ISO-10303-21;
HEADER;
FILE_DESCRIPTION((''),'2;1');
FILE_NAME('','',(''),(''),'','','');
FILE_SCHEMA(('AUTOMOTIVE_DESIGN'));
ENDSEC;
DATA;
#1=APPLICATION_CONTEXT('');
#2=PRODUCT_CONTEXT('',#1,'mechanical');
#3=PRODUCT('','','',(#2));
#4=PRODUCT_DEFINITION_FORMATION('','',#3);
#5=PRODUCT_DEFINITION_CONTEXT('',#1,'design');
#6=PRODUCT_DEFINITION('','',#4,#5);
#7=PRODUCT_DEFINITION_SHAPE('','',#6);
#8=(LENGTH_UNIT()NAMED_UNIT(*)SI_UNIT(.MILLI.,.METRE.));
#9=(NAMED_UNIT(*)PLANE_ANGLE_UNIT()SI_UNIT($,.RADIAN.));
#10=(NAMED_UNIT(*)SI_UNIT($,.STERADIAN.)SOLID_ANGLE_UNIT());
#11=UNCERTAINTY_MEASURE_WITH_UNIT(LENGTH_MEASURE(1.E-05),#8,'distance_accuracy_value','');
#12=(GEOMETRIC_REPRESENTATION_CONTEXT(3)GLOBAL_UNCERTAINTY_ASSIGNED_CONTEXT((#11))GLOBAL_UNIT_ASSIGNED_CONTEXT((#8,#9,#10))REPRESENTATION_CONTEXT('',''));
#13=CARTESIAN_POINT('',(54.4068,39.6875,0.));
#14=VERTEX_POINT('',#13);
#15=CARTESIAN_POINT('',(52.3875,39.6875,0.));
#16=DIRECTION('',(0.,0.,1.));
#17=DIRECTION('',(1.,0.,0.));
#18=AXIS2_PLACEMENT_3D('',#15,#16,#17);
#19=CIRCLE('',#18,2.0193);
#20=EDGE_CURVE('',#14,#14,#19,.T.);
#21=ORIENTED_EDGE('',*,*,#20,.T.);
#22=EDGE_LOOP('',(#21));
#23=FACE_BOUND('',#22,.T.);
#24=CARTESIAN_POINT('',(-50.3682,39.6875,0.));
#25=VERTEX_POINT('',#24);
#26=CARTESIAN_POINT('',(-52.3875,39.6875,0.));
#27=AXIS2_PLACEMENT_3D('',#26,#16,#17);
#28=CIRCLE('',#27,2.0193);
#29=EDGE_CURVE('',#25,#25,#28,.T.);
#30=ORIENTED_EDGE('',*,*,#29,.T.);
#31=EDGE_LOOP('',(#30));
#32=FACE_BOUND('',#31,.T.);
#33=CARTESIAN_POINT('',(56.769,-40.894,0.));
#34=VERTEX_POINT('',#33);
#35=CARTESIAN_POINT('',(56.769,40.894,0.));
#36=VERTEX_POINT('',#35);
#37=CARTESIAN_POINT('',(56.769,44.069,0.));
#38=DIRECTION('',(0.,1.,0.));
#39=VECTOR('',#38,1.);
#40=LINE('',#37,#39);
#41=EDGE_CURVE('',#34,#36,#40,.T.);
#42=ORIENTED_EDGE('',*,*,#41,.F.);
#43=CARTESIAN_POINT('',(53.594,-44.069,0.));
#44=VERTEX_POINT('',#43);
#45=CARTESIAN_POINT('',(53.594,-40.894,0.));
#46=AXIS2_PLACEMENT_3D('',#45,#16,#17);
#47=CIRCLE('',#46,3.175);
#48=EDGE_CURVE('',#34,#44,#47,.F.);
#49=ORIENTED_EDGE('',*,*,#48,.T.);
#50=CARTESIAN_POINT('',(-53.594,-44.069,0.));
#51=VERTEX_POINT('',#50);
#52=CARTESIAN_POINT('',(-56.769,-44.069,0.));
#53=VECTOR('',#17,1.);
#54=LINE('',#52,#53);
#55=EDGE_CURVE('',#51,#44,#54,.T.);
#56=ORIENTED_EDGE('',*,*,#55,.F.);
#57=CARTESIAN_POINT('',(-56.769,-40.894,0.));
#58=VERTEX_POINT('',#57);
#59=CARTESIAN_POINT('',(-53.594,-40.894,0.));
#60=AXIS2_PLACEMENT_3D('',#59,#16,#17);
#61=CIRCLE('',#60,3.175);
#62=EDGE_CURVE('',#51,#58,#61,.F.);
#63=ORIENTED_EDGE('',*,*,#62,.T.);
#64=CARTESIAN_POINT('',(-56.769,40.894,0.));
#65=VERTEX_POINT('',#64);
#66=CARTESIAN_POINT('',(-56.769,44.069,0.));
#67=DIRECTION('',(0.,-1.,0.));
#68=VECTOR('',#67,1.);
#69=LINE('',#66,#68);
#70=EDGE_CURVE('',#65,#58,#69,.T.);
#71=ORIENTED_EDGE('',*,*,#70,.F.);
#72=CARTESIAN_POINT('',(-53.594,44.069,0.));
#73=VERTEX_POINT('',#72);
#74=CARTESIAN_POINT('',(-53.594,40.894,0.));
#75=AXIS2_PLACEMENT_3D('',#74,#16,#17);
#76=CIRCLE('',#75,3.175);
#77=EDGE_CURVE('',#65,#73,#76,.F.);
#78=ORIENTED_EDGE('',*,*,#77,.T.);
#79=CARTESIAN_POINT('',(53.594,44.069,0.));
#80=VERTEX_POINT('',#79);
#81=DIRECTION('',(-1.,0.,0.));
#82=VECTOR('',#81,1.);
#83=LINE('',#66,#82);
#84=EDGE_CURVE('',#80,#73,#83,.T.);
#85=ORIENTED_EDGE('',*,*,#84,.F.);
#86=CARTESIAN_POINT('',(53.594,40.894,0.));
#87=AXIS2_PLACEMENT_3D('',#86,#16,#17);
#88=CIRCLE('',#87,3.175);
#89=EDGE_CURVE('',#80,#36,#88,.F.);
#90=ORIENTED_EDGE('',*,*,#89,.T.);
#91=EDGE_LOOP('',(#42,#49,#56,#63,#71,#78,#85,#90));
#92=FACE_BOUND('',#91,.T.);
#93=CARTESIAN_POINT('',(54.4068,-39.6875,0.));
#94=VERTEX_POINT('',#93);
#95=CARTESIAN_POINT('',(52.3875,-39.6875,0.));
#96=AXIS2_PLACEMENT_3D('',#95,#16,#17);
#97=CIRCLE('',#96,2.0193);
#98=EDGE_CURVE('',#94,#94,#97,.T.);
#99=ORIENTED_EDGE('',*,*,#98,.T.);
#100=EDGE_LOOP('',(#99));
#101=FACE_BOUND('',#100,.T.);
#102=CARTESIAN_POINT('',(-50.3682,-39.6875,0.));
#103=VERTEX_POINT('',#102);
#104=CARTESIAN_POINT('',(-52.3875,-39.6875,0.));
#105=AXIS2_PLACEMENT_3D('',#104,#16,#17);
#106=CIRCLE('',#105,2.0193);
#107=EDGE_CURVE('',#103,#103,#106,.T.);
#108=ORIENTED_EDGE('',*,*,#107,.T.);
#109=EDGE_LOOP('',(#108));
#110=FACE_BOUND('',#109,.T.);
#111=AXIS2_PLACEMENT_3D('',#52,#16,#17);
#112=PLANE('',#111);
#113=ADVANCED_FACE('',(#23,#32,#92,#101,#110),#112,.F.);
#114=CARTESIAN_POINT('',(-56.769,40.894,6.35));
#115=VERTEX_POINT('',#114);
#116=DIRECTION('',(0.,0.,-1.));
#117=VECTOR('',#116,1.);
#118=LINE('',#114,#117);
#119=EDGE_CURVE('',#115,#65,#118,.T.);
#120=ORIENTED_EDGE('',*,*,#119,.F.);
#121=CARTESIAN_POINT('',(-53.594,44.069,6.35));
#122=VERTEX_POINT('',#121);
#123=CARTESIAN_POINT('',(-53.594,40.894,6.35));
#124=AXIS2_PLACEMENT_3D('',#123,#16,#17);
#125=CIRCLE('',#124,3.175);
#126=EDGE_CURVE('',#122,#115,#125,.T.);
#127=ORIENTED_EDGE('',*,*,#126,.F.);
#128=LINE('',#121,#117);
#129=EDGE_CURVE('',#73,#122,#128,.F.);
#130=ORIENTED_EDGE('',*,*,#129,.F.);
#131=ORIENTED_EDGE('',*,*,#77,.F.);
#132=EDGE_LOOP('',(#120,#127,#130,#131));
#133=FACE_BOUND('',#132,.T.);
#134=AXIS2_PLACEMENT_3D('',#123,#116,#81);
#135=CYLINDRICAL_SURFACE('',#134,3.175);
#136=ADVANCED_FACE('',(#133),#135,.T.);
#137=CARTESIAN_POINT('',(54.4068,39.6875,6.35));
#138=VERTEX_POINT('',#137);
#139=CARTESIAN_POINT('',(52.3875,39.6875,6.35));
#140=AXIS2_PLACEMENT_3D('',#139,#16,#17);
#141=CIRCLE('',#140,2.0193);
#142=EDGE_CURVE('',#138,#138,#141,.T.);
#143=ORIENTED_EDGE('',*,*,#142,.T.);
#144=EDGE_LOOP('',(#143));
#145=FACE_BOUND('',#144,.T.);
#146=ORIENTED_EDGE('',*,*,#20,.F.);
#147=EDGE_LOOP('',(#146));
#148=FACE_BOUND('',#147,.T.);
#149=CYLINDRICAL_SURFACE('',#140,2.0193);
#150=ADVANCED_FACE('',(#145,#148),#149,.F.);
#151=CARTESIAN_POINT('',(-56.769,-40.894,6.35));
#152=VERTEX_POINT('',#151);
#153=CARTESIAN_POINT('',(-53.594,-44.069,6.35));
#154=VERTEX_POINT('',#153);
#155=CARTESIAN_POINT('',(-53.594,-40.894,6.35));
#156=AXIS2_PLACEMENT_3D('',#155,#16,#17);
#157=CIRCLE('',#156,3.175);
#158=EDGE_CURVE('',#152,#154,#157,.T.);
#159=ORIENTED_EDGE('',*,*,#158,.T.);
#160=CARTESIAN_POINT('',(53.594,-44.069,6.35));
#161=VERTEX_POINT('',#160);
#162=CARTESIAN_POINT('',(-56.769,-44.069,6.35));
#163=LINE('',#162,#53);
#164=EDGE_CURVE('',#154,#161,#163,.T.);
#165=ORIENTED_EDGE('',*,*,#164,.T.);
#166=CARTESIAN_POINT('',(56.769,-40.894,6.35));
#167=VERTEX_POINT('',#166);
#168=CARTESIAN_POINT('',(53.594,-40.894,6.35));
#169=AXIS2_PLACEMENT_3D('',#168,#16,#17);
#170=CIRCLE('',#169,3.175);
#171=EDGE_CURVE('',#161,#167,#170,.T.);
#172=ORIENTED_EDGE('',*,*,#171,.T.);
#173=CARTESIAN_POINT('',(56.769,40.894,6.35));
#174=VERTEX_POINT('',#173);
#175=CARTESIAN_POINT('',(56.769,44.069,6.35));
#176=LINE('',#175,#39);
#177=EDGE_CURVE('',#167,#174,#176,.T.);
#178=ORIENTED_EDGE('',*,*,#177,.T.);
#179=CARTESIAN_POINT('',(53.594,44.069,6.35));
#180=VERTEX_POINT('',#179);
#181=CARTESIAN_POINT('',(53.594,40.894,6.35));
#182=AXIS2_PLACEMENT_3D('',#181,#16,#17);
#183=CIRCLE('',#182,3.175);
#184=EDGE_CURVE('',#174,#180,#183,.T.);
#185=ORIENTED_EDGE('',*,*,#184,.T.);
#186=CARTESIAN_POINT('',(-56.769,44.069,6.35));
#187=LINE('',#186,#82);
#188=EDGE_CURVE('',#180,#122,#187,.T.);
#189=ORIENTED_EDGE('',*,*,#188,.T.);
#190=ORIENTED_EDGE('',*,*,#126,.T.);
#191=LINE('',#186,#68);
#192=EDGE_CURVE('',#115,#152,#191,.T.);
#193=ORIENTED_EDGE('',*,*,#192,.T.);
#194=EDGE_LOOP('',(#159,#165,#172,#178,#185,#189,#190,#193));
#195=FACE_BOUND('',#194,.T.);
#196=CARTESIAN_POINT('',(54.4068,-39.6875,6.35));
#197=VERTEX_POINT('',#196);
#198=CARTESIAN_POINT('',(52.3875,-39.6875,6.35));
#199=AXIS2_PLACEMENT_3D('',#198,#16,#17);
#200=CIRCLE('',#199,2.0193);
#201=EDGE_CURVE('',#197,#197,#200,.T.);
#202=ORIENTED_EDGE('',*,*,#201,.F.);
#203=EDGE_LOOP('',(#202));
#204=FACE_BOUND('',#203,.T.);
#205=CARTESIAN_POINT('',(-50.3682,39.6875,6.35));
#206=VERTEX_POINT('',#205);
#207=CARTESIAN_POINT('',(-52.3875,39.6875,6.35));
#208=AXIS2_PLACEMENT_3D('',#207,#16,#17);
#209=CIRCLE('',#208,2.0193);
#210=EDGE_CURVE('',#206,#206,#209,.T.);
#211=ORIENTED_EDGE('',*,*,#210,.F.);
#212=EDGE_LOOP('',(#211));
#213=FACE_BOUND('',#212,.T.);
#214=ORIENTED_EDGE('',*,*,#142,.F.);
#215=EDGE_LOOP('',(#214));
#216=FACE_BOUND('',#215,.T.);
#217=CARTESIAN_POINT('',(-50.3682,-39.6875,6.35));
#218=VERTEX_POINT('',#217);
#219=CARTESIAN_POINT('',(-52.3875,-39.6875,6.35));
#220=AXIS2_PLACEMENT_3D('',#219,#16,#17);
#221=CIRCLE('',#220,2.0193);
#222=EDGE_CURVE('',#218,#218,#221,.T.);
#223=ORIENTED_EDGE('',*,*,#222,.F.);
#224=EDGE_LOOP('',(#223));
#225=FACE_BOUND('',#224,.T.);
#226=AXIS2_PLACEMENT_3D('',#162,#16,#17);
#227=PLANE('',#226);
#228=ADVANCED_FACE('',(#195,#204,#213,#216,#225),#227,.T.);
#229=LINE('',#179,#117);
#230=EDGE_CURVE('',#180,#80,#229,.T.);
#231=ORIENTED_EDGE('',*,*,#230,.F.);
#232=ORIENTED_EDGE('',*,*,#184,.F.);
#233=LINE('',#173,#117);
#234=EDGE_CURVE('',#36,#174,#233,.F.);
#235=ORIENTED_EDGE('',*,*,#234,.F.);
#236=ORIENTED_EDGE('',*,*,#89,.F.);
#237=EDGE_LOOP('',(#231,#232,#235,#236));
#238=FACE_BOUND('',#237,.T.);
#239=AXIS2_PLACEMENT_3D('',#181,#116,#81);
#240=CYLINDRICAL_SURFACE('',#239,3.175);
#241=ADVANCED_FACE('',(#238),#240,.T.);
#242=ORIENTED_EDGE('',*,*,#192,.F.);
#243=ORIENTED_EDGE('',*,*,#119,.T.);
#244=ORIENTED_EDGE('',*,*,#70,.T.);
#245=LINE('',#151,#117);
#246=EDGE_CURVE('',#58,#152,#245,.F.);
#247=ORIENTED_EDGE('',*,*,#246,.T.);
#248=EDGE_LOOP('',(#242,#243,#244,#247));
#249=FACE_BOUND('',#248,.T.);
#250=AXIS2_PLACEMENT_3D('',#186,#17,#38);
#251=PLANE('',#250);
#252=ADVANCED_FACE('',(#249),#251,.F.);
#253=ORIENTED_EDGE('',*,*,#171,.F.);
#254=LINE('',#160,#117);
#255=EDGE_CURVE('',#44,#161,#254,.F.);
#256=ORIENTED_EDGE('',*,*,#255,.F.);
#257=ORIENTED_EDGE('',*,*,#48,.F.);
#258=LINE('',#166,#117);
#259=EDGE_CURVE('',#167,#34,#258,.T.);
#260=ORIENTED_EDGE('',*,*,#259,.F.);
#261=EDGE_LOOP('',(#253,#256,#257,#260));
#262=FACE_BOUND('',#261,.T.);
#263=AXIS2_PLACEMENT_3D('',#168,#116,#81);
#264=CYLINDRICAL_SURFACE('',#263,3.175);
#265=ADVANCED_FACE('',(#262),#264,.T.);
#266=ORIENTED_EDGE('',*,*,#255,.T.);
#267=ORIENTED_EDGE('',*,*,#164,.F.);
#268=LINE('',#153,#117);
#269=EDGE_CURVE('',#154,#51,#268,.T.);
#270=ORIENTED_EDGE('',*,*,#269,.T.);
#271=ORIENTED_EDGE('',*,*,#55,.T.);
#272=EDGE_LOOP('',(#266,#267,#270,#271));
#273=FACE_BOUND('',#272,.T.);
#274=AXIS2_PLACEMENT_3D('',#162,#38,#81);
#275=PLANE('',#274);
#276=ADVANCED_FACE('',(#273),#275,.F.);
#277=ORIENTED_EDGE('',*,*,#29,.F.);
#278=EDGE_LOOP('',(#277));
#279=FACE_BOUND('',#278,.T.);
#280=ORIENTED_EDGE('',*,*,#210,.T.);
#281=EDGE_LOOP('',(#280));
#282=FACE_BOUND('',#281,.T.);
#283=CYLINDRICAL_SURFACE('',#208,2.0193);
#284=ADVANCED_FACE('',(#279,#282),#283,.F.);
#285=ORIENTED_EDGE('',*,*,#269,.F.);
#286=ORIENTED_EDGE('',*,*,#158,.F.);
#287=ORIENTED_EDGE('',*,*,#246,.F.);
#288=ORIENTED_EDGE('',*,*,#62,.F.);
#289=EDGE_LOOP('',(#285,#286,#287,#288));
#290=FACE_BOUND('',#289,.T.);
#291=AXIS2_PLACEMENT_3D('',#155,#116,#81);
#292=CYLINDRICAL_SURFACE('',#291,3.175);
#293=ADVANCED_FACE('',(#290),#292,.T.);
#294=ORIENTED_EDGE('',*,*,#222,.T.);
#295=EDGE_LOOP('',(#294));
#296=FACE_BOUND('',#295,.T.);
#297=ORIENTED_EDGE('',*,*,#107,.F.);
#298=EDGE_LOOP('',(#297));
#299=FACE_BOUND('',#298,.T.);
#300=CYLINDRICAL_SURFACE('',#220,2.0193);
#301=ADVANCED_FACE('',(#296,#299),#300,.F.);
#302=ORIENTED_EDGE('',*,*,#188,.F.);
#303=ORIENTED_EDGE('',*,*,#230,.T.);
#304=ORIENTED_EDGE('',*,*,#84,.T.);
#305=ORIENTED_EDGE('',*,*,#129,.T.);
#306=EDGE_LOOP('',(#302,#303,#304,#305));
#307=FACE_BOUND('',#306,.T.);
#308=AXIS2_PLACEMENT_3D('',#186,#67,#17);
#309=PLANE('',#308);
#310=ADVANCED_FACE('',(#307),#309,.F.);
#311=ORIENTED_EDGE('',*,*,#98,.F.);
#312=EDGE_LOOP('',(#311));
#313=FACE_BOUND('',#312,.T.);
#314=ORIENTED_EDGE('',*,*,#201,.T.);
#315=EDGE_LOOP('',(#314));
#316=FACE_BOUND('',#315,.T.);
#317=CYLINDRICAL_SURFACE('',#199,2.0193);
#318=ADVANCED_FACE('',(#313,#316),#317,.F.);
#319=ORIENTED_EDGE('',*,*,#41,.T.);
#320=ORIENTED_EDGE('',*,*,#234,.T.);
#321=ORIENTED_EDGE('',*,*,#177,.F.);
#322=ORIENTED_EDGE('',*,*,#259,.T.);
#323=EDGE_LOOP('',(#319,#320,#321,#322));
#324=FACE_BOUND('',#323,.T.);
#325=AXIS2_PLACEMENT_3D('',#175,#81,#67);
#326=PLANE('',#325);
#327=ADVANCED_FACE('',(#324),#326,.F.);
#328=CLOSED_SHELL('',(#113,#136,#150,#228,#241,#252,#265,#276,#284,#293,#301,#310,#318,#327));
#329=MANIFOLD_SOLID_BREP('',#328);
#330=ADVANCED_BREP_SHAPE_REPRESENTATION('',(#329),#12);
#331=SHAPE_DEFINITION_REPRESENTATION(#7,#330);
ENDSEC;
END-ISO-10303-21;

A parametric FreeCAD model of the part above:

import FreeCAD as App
import Part
import Sketcher

V = App.Vector
Q = App.Units.Quantity


def edges_at(feature, points):
    """Names of the edges that pass closest to the given points."""
    edges = feature.Shape.Edges
    near = lambda p: min(range(len(edges)), key=lambda i: edges[i].distToShape(Part.Vertex(*p))[0])
    return sorted({f"Edge{near(p) + 1}" for p in points})

doc = App.newDocument("Part")
body = doc.addObject("PartDesign::Body", "Body")

sketch1 = body.newObject("Sketcher::SketchObject", "Sketch")
sketch1.AttachmentSupport = (doc.getObject("XY_Plane"), [""])
sketch1.MapMode = "FlatFace"
sketch1.addGeometry(Part.LineSegment(V(-57, 44, 0), V(-57, -44, 0)), False)
sketch1.addGeometry(Part.LineSegment(V(-57, -44, 0), V(57, -44, 0)), False)
sketch1.addGeometry(Part.LineSegment(V(57, -44, 0), V(57, 44, 0)), False)
sketch1.addGeometry(Part.LineSegment(V(57, 44, 0), V(-57, 44, 0)), False)
sketch1.addConstraint(Sketcher.Constraint("Coincident", 0, 2, 1, 1))
sketch1.addConstraint(Sketcher.Constraint("Coincident", 1, 2, 2, 1))
sketch1.addConstraint(Sketcher.Constraint("Coincident", 2, 2, 3, 1))
sketch1.addConstraint(Sketcher.Constraint("Coincident", 3, 2, 0, 1))
sketch1.addConstraint(Sketcher.Constraint("Vertical", 0))
sketch1.addConstraint(Sketcher.Constraint("Horizontal", 1))
sketch1.addConstraint(Sketcher.Constraint("Vertical", 2))
sketch1.addConstraint(Sketcher.Constraint("Horizontal", 3))
sketch1.addConstraint(Sketcher.Constraint("Symmetric", 0, 2, 2, 2, -1, 1))
sketch1.addConstraint(Sketcher.Constraint("DistanceX", 1, 1, 1, 2, Q("4.47 in")))
sketch1.addConstraint(Sketcher.Constraint("DistanceY", 0, 2, 0, 1, Q("3.47 in")))
pad1 = body.newObject("PartDesign::Pad", "Pad")
pad1.Profile = sketch1
pad1.Length = Q("0.25 in")

sketch2 = body.newObject("Sketcher::SketchObject", "Sketch001")
sketch2.AttachmentSupport = (doc.getObject("XY_Plane"), [""])
sketch2.MapMode = "FlatFace"
sketch2.AttachmentOffset = App.Placement(V(0, 0, 0.25 * 25.4), App.Rotation())
sketch2.addGeometry(Part.Circle(V(-52.4, 39.7, 0), V(0, 0, 1), 2), False)
sketch2.addGeometry(Part.Circle(V(52.4, 39.7, 0), V(0, 0, 1), 2), False)
sketch2.addGeometry(Part.Circle(V(52.4, -39.7, 0), V(0, 0, 1), 2), False)
sketch2.addGeometry(Part.Circle(V(-52.4, -39.7, 0), V(0, 0, 1), 2), False)
sketch2.addConstraint(Sketcher.Constraint("Equal", 0, 1))
sketch2.addConstraint(Sketcher.Constraint("Equal", 1, 2))
sketch2.addConstraint(Sketcher.Constraint("Equal", 2, 3))
sketch2.addConstraint(Sketcher.Constraint("Symmetric", 0, 3, 2, 3, -1, 1))
sketch2.addConstraint(Sketcher.Constraint("Symmetric", 1, 3, 3, 3, -1, 1))
sketch2.addConstraint(Sketcher.Constraint("Symmetric", 0, 3, 1, 3, -2))
sketch2.addConstraint(Sketcher.Constraint("Diameter", 0, Q("0.159 in")))
sketch2.addConstraint(Sketcher.Constraint("DistanceX", 0, 3, -1, 1, Q("2.0625 in")))
sketch2.addConstraint(Sketcher.Constraint("DistanceY", -1, 1, 0, 3, Q("1.5625 in")))
doc.recompute()
hole = body.newObject("PartDesign::Hole", "Hole")
hole.Profile = sketch2
hole.ThreadType = "None"
hole.Diameter = Q("0.159 in")
hole.DepthType = "Dimension"
hole.Depth = Q("0.25 in")
hole.DrillPoint = "Flat"
doc.recompute()

fillet = body.newObject("PartDesign::Fillet", "Fillet")
fillet.Base = (hole, edges_at(hole, [
    (-56.769, 44.069, 3.175),
    (56.769, 44.069, 3.175),
    (56.769, -44.069, 3.175),
    (-56.769, -44.069, 3.175),
]))
fillet.Radius = Q("0.125 in")

doc.recompute()
